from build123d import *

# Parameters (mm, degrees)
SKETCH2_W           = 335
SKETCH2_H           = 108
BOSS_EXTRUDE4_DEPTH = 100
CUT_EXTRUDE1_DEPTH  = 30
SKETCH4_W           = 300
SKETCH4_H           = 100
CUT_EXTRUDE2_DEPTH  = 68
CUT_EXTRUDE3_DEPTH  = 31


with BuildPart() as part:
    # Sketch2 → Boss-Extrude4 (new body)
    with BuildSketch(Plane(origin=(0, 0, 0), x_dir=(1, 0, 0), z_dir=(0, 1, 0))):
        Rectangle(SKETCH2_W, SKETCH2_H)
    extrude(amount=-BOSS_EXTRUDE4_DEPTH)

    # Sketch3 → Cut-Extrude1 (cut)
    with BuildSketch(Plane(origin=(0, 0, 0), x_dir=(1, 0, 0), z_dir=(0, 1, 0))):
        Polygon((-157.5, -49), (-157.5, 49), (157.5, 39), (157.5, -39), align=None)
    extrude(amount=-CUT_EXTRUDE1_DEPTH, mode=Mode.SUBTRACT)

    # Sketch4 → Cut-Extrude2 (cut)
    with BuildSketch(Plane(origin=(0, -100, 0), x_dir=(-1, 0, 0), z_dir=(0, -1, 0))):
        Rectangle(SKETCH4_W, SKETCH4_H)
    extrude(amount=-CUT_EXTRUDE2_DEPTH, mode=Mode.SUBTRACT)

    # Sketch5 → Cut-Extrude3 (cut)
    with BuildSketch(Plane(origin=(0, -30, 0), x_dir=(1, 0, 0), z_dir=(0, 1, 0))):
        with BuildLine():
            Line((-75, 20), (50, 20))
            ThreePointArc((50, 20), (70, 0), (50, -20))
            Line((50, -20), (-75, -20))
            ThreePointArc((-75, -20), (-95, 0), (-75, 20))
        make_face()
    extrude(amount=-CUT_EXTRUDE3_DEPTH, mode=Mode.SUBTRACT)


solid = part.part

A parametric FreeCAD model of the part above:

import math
import FreeCAD as App
import Part
import Sketcher
Q = App.Units.Quantity

doc = App.newDocument("Part")
params = doc.addObject("Spreadsheet::Sheet", "Params")
for row, (alias, value) in enumerate([
    ("sketch1_width", "335 mm"),
    ("sketch1_height", "108 mm"),
    ("pad1_length", "100 mm"),
    ("sketch2_height", "98 mm"),
    ("sketch2_height2", "78 mm"),
    ("pocket1_length", "30 mm"),
    ("sketch3_width", "300 mm"),
    ("sketch3_height", "100 mm"),
    ("pocket2_length", "68 mm"),
    ("sketch4_radius", "20 mm"),
    ("sketch4_width", "125 mm"),
    ("pocket3_length", "31 mm"),
], start=1):
    params.set(f"A{row}", alias)
    params.set(f"B{row}", "=" + value)
    params.setAlias(f"B{row}", alias)

body = doc.addObject("PartDesign::Body", "Body")

# Sketch on XZ plane
sketch1 = doc.addObject("Sketcher::SketchObject", "Sketch")
body.addObject(sketch1)
sketch1.AttachmentSupport = (doc.XZ_Plane, [""])
sketch1.MapMode = "FlatFace"
sketch1.addGeometry(Part.LineSegment(App.Vector(-168, -54, 0), App.Vector(-168, 54, 0)), False)
sketch1.addGeometry(Part.LineSegment(App.Vector(-168, 54, 0), App.Vector(168, 54, 0)), False)
sketch1.addGeometry(Part.LineSegment(App.Vector(168, 54, 0), App.Vector(168, -54, 0)), False)
sketch1.addGeometry(Part.LineSegment(App.Vector(168, -54, 0), App.Vector(-168, -54, 0)), False)
sketch1.addConstraint(Sketcher.Constraint("Coincident", 0, 2, 1, 1))
sketch1.addConstraint(Sketcher.Constraint("Coincident", 1, 2, 2, 1))
sketch1.addConstraint(Sketcher.Constraint("Coincident", 2, 2, 3, 1))
sketch1.addConstraint(Sketcher.Constraint("Coincident", 3, 2, 0, 1))
sketch1.addConstraint(Sketcher.Constraint("Vertical", 0))
sketch1.addConstraint(Sketcher.Constraint("Horizontal", 1))
sketch1.addConstraint(Sketcher.Constraint("Vertical", 2))
sketch1.addConstraint(Sketcher.Constraint("Horizontal", 3))
sketch1.addConstraint(Sketcher.Constraint("Symmetric", 0, 2, 2, 2, -1, 1))
sketch1.addConstraint(Sketcher.Constraint("DistanceX", 1, 1, 1, 2, Q("335 mm")))
sketch1.addConstraint(Sketcher.Constraint("DistanceY", 0, 1, 0, 2, Q("108 mm")))
sketch1.setExpression("Constraints[9]", "Params.sketch1_width")
sketch1.setExpression("Constraints[10]", "Params.sketch1_height")
pad1 = doc.addObject("PartDesign::Pad", "Pad")
body.addObject(pad1)
pad1.Profile = sketch1
pad1.setExpression("Length", "Params.pad1_length")

# Sketch on XZ plane
sketch2 = doc.addObject("Sketcher::SketchObject", "Sketch001")
body.addObject(sketch2)
sketch2.AttachmentSupport = (doc.XZ_Plane, [""])
sketch2.MapMode = "FlatFace"
sketch2.addGeometry(Part.LineSegment(App.Vector(-158, -49, 0), App.Vector(-158, 49, 0)), False)
sketch2.addGeometry(Part.LineSegment(App.Vector(-158, 49, 0), App.Vector(158, 39, 0)), False)
sketch2.addGeometry(Part.LineSegment(App.Vector(158, 39, 0), App.Vector(158, -39, 0)), False)
sketch2.addGeometry(Part.LineSegment(App.Vector(158, -39, 0), App.Vector(-158, -49, 0)), False)
sketch2.addConstraint(Sketcher.Constraint("Coincident", 0, 2, 1, 1))
sketch2.addConstraint(Sketcher.Constraint("Coincident", 1, 2, 2, 1))
sketch2.addConstraint(Sketcher.Constraint("Coincident", 2, 2, 3, 1))
sketch2.addConstraint(Sketcher.Constraint("Coincident", 3, 2, 0, 1))
sketch2.addConstraint(Sketcher.Constraint("Vertical", 0))
sketch2.addConstraint(Sketcher.Constraint("Vertical", 2))
sketch2.addConstraint(Sketcher.Constraint("Equal", 1, 3))
sketch2.addConstraint(Sketcher.Constraint("DistanceY", 0, 1, 0, 2, Q("98 mm")))
sketch2.addConstraint(Sketcher.Constraint("DistanceY", 2, 2, 2, 1, Q("78 mm")))
sketch2.addConstraint(Sketcher.Constraint("DistanceY", -1, 1, 0, 2, Q("49 mm")))
sketch2.addConstraint(Sketcher.Constraint("DistanceX", 0, 2, 1, 2, Q("315 mm")))
sketch2.addConstraint(Sketcher.Constraint("DistanceX", 0, 2, -1, 1, Q("157.5 mm")))
sketch2.setExpression("Constraints[7]", "Params.sketch2_height")
sketch2.setExpression("Constraints[8]", "Params.sketch2_height2")
pocket1 = doc.addObject("PartDesign::Pocket", "Pocket")
body.addObject(pocket1)
pocket1.Profile = sketch2
pocket1.setExpression("Length", "Params.pocket1_length")
pocket1.Reversed = True

# Sketch on XZ plane
sketch3 = doc.addObject("Sketcher::SketchObject", "Sketch002")
body.addObject(sketch3)
sketch3.AttachmentSupport = (doc.XZ_Plane, [""])
sketch3.MapMode = "FlatFace"
sketch3.AttachmentOffset = App.Placement(App.Vector(0, 0, 100), App.Rotation())
sketch3.addGeometry(Part.LineSegment(App.Vector(150, -50, 0), App.Vector(150, 50, 0)), False)
sketch3.addGeometry(Part.LineSegment(App.Vector(150, 50, 0), App.Vector(-150, 50, 0)), False)
sketch3.addGeometry(Part.LineSegment(App.Vector(-150, 50, 0), App.Vector(-150, -50, 0)), False)
sketch3.addGeometry(Part.LineSegment(App.Vector(-150, -50, 0), App.Vector(150, -50, 0)), False)
sketch3.addConstraint(Sketcher.Constraint("Coincident", 0, 2, 1, 1))
sketch3.addConstraint(Sketcher.Constraint("Coincident", 1, 2, 2, 1))
sketch3.addConstraint(Sketcher.Constraint("Coincident", 2, 2, 3, 1))
sketch3.addConstraint(Sketcher.Constraint("Coincident", 3, 2, 0, 1))
sketch3.addConstraint(Sketcher.Constraint("Vertical", 0))
sketch3.addConstraint(Sketcher.Constraint("Horizontal", 1))
sketch3.addConstraint(Sketcher.Constraint("Vertical", 2))
sketch3.addConstraint(Sketcher.Constraint("Horizontal", 3))
sketch3.addConstraint(Sketcher.Constraint("Symmetric", 0, 2, 2, 2, -1, 1))
sketch3.addConstraint(Sketcher.Constraint("DistanceX", 1, 2, 1, 1, Q("300 mm")))
sketch3.addConstraint(Sketcher.Constraint("DistanceY", 0, 1, 0, 2, Q("100 mm")))
sketch3.setExpression("Constraints[9]", "Params.sketch3_width")
sketch3.setExpression("Constraints[10]", "Params.sketch3_height")
pocket2 = doc.addObject("PartDesign::Pocket", "Pocket001")
body.addObject(pocket2)
pocket2.Profile = sketch3
pocket2.setExpression("Length", "Params.pocket2_length")

# Sketch on XZ plane
sketch4 = doc.addObject("Sketcher::SketchObject", "Sketch003")
body.addObject(sketch4)
sketch4.AttachmentSupport = (doc.XZ_Plane, [""])
sketch4.MapMode = "FlatFace"
sketch4.AttachmentOffset = App.Placement(App.Vector(0, 0, 30), App.Rotation())
sketch4.addGeometry(Part.LineSegment(App.Vector(50, -20, 0), App.Vector(-75, -20, 0)), False)
sketch4.addGeometry(Part.ArcOfCircle(Part.Circle(App.Vector(-75, 0, 0), App.Vector(0, 0, 1), 20), math.radians(90), math.radians(270)), False)
sketch4.addGeometry(Part.LineSegment(App.Vector(-75, 20, 0), App.Vector(50, 20, 0)), False)
sketch4.addGeometry(Part.ArcOfCircle(Part.Circle(App.Vector(50, 0, 0), App.Vector(0, 0, 1), 20), math.radians(-90), math.radians(90)), False)
sketch4.addConstraint(Sketcher.Constraint("Tangent", 0, 2, 1, 2))
sketch4.addConstraint(Sketcher.Constraint("Tangent", 1, 1, 2, 1))
sketch4.addConstraint(Sketcher.Constraint("Tangent", 2, 2, 3, 2))
sketch4.addConstraint(Sketcher.Constraint("Tangent", 3, 1, 0, 1))
sketch4.addConstraint(Sketcher.Constraint("Horizontal", 0))
sketch4.addConstraint(Sketcher.Constraint("Horizontal", 2))
sketch4.addConstraint(Sketcher.Constraint("PointOnObject", 1, 3, -1))
sketch4.addConstraint(Sketcher.Constraint("Radius", 1, Q("20 mm")))
sketch4.addConstraint(Sketcher.Constraint("DistanceX", 0, 2, 0, 1, Q("125 mm")))
sketch4.addConstraint(Sketcher.Constraint("DistanceX", 1, 3, -1, 1, Q("75 mm")))
sketch4.setExpression("Constraints[7]", "Params.sketch4_radius")
sketch4.setExpression("Constraints[8]", "Params.sketch4_width")
pocket3 = doc.addObject("PartDesign::Pocket", "Pocket002")
body.addObject(pocket3)
pocket3.Profile = sketch4
pocket3.setExpression("Length", "Params.pocket3_length")
pocket3.Reversed = True

doc.recompute()
